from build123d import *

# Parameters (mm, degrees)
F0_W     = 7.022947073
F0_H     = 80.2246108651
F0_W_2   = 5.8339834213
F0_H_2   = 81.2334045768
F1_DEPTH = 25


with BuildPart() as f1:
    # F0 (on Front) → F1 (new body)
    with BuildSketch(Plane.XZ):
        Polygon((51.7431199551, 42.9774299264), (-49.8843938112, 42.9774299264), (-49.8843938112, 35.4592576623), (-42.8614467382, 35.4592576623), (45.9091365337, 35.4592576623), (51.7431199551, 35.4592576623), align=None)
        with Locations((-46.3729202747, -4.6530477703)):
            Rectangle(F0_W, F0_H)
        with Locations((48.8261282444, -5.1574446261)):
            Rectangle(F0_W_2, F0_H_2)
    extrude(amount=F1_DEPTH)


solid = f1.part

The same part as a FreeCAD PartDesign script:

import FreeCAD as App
import Part
import Sketcher
from FreeCAD import Vector


def add_polygon(sketch, points):
    """Adds a closed chain of lines whose ends are joined by coincident constraints."""
    first, n = sketch.GeometryCount, len(points)
    for a, b in zip(points, points[1:] + points[:1]):
        sketch.addGeometry(Part.LineSegment(App.Vector(*a, 0), App.Vector(*b, 0)), False)
    for i in range(n):
        sketch.addConstraint(Sketcher.Constraint("Coincident", first + i, 2, first + (i + 1) % n, 1))

doc = App.newDocument("Part")
params = doc.addObject("Spreadsheet::Sheet", "Params")
for row, (alias, value) in enumerate([
    ("pad1_length", "25 mm"),
], start=1):
    params.set(f"A{row}", alias)
    params.set(f"B{row}", "=" + value)
    params.setAlias(f"B{row}", alias)

body = doc.addObject("PartDesign::Body", "Body")

# Sketch on XZ plane
sketch1 = doc.addObject("Sketcher::SketchObject", "Sketch")
body.addObject(sketch1)
sketch1.AttachmentSupport = (doc.XZ_Plane, [""])
sketch1.MapMode = "FlatFace"
add_polygon(sketch1, [(52, 43), (-50, 43), (-50, -45), (-43, -45), (-43, 35), (46, 35), (46, -46), (52, -46)])  # lines 0-7
sketch1.addConstraint([
    Sketcher.Constraint("Horizontal", 0),
    Sketcher.Constraint("Vertical", 1),
    Sketcher.Constraint("Horizontal", 2),
    Sketcher.Constraint("Vertical", 3),
    Sketcher.Constraint("Horizontal", 4),
    Sketcher.Constraint("Vertical", 5),
    Sketcher.Constraint("Horizontal", 6),
    Sketcher.Constraint("Vertical", 7),
    Sketcher.Constraint("DistanceY", 3, 1, 3, 2, 80.224611),
    Sketcher.Constraint("DistanceX", 0, 2, 0, 1, 101.627514),
    Sketcher.Constraint("DistanceX", 2, 1, 2, 2, 7.022947),
    Sketcher.Constraint("DistanceX", 4, 1, 4, 2, 88.770583),
    Sketcher.Constraint("DistanceY", 1, 2, 1, 1, 87.742783),
    Sketcher.Constraint("DistanceY", 5, 2, 5, 1, 81.233405),
    Sketcher.Constraint("DistanceY", -1, 1, 0, 2, 42.97743),
    Sketcher.Constraint("DistanceX", -1, 1, 6, 2, 51.74312),
])
pad1 = doc.addObject("PartDesign::Pad", "Pad")
body.addObject(pad1)
pad1.Profile = sketch1
pad1.setExpression("Length", "Params.pad1_length")

doc.recompute()
